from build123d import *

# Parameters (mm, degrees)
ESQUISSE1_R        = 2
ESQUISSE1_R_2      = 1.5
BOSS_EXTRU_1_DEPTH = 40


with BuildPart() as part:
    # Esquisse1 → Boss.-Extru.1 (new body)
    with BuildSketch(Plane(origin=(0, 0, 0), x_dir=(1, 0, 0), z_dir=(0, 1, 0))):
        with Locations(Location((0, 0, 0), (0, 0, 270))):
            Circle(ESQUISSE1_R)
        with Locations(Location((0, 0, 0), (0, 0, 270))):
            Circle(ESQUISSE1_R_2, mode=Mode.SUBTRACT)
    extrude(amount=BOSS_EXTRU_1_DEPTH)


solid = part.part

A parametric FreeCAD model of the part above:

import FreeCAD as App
import Part
import Sketcher

V = App.Vector

doc = App.newDocument("Part")
body = doc.addObject("PartDesign::Body", "Body")

sketch1 = body.newObject("Sketcher::SketchObject", "Sketch")
sketch1.AttachmentSupport = (doc.getObject("XZ_Plane"), [""])
sketch1.MapMode = "FlatFace"
sketch1.addGeometry([
    Part.Circle(V(0, 0, 0), V(0, 0, 1), 2),
    Part.Circle(V(0, 0, 0), V(0, 0, 1), 1.5),
], False)
sketch1.addConstraint([
    Sketcher.Constraint("Coincident", 0, 3, -1, 1),
    Sketcher.Constraint("Coincident", 1, 3, -1, 1),
    Sketcher.Constraint("Diameter", 0, 4.0),
    Sketcher.Constraint("Diameter", 1, 3.0),
])
pad1 = body.newObject("PartDesign::Pad", "Pad")
pad1.Profile = sketch1
pad1.Length = 40
pad1.Reversed = True

doc.recompute()
